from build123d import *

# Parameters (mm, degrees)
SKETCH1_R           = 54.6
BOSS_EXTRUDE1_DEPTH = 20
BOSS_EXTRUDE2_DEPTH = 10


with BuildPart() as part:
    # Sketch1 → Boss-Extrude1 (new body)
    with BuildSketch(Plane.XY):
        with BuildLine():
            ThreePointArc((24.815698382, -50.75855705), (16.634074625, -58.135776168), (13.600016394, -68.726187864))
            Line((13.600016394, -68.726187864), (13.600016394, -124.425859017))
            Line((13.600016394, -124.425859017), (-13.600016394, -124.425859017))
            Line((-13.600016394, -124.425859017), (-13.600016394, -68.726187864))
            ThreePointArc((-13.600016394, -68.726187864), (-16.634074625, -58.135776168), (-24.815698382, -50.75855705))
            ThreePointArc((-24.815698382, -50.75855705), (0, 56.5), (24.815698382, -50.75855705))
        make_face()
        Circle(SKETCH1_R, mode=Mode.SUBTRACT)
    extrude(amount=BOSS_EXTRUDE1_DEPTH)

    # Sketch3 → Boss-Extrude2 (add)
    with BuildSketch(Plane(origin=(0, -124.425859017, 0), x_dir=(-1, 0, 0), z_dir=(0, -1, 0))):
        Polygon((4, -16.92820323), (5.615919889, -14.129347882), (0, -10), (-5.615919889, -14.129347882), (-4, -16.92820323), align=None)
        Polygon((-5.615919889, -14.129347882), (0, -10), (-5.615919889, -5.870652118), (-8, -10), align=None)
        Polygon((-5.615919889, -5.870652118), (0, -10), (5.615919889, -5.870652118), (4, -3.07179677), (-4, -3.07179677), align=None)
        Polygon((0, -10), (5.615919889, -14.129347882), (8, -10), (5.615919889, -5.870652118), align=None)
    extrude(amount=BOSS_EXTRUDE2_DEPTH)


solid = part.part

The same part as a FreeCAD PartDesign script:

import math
import FreeCAD as App
import Part
import Sketcher
from FreeCAD import Vector
Q = App.Units.Quantity


def add_polygon(sketch, points):
    """Adds a closed chain of lines whose ends are joined by coincident constraints."""
    first, n = sketch.GeometryCount, len(points)
    for a, b in zip(points, points[1:] + points[:1]):
        sketch.addGeometry(Part.LineSegment(App.Vector(*a, 0), App.Vector(*b, 0)), False)
    for i in range(n):
        sketch.addConstraint(Sketcher.Constraint("Coincident", first + i, 2, first + (i + 1) % n, 1))

doc = App.newDocument("Part")
body = doc.addObject("PartDesign::Body", "Body")

sketch1 = body.newObject("Sketcher::SketchObject", "Sketch")
sketch1.AttachmentSupport = (doc.getObject("XY_Plane"), [""])
sketch1.MapMode = "FlatFace"
sketch1.addGeometry(Part.ArcOfCircle(Part.Circle(Vector(34, -69, 0), Vector(0, 0, 1), 20), math.radians(116), math.radians(180)), False)
sketch1.addGeometry(Part.ArcOfCircle(Part.Circle(Vector(0, 0, 0), Vector(0, 0, 1), 56), math.radians(-64), math.radians(244)), False)
sketch1.addGeometry(Part.ArcOfCircle(Part.Circle(Vector(-34, -69, 0), Vector(0, 0, 1), 20), math.radians(0), math.radians(64)), False)
sketch1.addGeometry(Part.LineSegment(Vector(-14, -69, 0), Vector(-14, -124, 0)), False)
sketch1.addGeometry(Part.LineSegment(Vector(-14, -124, 0), Vector(14, -124, 0)), False)
sketch1.addGeometry(Part.LineSegment(Vector(14, -124, 0), Vector(14, -69, 0)), False)
sketch1.addGeometry(Part.Circle(Vector(0, 0, 0), Vector(0, 0, 1), 55), False)
sketch1.addConstraint(Sketcher.Constraint("Tangent", 0, 1, 1, 1))
sketch1.addConstraint(Sketcher.Constraint("Tangent", 1, 2, 2, 2))
sketch1.addConstraint(Sketcher.Constraint("Tangent", 2, 1, 3, 1))
sketch1.addConstraint(Sketcher.Constraint("Coincident", 3, 2, 4, 1))
sketch1.addConstraint(Sketcher.Constraint("Coincident", 4, 2, 5, 1))
sketch1.addConstraint(Sketcher.Constraint("Tangent", 5, 2, 0, 2))
sketch1.addConstraint(Sketcher.Constraint("Vertical", 3))
sketch1.addConstraint(Sketcher.Constraint("Horizontal", 4))
sketch1.addConstraint(Sketcher.Constraint("Vertical", 5))
sketch1.addConstraint(Sketcher.Constraint("Coincident", 1, 3, -1, 1))
sketch1.addConstraint(Sketcher.Constraint("Coincident", 6, 3, -1, 1))
sketch1.addConstraint(Sketcher.Constraint("Equal", 0, 2))
sketch1.addConstraint(Sketcher.Constraint("Horizontal", 0, 3, 2, 3))
sketch1.addConstraint(Sketcher.Constraint("Radius", 0, Q("20 mm")))
sketch1.addConstraint(Sketcher.Constraint("Diameter", 6, Q("109.2 mm")))
sketch1.addConstraint(Sketcher.Constraint("Radius", 1, Q("56.5 mm")))
sketch1.addConstraint(Sketcher.Constraint("DistanceY", 3, 2, 3, 1, Q("55.699671 mm")))
sketch1.addConstraint(Sketcher.Constraint("DistanceX", -1, 1, 0, 1, Q("24.815698 mm")))
pad1 = body.newObject("PartDesign::Pad", "Pad")
pad1.Profile = sketch1
pad1.Length = 20

sketch2 = body.newObject("Sketcher::SketchObject", "Sketch001")
sketch2.AttachmentSupport = (doc.getObject("XZ_Plane"), [""])
sketch2.MapMode = "FlatFace"
sketch2.AttachmentOffset = App.Placement(Vector(0, 0, 124.425859), App.Rotation())
add_polygon(sketch2, [(-4, 16.9), (-5.6, 14.1), (-8, 10), (-5.6, 5.9), (-4, 3.1), (4, 3.1), (5.6, 5.9), (8, 10), (5.6, 14.1), (4, 16.9)])
sketch2.addConstraint(Sketcher.Constraint("Horizontal", 4))
sketch2.addConstraint(Sketcher.Constraint("Horizontal", 9))
sketch2.addConstraint(Sketcher.Constraint("Symmetric", 2, 2, 5, 2, -2))
sketch2.addConstraint(Sketcher.Constraint("Symmetric", 1, 2, 6, 2, -2))
sketch2.addConstraint(Sketcher.Constraint("Symmetric", 0, 2, 7, 2, -2))
sketch2.addConstraint(Sketcher.Constraint("Parallel", 0, 1))
sketch2.addConstraint(Sketcher.Constraint("Parallel", 2, 3))
sketch2.addConstraint(Sketcher.Constraint("Parallel", 1, 5))
sketch2.addConstraint(Sketcher.Constraint("Parallel", 5, 6))
sketch2.addConstraint(Sketcher.Constraint("Parallel", 7, 8))
sketch2.addConstraint(Sketcher.Constraint("Vertical", 0, 2, 2, 2))
sketch2.addConstraint(Sketcher.Constraint("Vertical", 4, 2, 8, 2))
sketch2.addConstraint(Sketcher.Constraint("DistanceX", 4, 1, 4, 2, Q("8 mm")))
sketch2.addConstraint(Sketcher.Constraint("Angle", 0, Q("-120 deg")))
sketch2.addConstraint(Sketcher.Constraint("DistanceX", 1, 2, -1, 1, Q("8 mm")))
sketch2.addConstraint(Sketcher.Constraint("DistanceY", -1, 1, 1, 2, Q("10 mm")))
sketch2.addConstraint(Sketcher.Constraint("Distance", 0, Q("3.23184 mm")))
pad2 = body.newObject("PartDesign::Pad", "Pad001")
pad2.Profile = sketch2
pad2.Length = 10

doc.recompute()
